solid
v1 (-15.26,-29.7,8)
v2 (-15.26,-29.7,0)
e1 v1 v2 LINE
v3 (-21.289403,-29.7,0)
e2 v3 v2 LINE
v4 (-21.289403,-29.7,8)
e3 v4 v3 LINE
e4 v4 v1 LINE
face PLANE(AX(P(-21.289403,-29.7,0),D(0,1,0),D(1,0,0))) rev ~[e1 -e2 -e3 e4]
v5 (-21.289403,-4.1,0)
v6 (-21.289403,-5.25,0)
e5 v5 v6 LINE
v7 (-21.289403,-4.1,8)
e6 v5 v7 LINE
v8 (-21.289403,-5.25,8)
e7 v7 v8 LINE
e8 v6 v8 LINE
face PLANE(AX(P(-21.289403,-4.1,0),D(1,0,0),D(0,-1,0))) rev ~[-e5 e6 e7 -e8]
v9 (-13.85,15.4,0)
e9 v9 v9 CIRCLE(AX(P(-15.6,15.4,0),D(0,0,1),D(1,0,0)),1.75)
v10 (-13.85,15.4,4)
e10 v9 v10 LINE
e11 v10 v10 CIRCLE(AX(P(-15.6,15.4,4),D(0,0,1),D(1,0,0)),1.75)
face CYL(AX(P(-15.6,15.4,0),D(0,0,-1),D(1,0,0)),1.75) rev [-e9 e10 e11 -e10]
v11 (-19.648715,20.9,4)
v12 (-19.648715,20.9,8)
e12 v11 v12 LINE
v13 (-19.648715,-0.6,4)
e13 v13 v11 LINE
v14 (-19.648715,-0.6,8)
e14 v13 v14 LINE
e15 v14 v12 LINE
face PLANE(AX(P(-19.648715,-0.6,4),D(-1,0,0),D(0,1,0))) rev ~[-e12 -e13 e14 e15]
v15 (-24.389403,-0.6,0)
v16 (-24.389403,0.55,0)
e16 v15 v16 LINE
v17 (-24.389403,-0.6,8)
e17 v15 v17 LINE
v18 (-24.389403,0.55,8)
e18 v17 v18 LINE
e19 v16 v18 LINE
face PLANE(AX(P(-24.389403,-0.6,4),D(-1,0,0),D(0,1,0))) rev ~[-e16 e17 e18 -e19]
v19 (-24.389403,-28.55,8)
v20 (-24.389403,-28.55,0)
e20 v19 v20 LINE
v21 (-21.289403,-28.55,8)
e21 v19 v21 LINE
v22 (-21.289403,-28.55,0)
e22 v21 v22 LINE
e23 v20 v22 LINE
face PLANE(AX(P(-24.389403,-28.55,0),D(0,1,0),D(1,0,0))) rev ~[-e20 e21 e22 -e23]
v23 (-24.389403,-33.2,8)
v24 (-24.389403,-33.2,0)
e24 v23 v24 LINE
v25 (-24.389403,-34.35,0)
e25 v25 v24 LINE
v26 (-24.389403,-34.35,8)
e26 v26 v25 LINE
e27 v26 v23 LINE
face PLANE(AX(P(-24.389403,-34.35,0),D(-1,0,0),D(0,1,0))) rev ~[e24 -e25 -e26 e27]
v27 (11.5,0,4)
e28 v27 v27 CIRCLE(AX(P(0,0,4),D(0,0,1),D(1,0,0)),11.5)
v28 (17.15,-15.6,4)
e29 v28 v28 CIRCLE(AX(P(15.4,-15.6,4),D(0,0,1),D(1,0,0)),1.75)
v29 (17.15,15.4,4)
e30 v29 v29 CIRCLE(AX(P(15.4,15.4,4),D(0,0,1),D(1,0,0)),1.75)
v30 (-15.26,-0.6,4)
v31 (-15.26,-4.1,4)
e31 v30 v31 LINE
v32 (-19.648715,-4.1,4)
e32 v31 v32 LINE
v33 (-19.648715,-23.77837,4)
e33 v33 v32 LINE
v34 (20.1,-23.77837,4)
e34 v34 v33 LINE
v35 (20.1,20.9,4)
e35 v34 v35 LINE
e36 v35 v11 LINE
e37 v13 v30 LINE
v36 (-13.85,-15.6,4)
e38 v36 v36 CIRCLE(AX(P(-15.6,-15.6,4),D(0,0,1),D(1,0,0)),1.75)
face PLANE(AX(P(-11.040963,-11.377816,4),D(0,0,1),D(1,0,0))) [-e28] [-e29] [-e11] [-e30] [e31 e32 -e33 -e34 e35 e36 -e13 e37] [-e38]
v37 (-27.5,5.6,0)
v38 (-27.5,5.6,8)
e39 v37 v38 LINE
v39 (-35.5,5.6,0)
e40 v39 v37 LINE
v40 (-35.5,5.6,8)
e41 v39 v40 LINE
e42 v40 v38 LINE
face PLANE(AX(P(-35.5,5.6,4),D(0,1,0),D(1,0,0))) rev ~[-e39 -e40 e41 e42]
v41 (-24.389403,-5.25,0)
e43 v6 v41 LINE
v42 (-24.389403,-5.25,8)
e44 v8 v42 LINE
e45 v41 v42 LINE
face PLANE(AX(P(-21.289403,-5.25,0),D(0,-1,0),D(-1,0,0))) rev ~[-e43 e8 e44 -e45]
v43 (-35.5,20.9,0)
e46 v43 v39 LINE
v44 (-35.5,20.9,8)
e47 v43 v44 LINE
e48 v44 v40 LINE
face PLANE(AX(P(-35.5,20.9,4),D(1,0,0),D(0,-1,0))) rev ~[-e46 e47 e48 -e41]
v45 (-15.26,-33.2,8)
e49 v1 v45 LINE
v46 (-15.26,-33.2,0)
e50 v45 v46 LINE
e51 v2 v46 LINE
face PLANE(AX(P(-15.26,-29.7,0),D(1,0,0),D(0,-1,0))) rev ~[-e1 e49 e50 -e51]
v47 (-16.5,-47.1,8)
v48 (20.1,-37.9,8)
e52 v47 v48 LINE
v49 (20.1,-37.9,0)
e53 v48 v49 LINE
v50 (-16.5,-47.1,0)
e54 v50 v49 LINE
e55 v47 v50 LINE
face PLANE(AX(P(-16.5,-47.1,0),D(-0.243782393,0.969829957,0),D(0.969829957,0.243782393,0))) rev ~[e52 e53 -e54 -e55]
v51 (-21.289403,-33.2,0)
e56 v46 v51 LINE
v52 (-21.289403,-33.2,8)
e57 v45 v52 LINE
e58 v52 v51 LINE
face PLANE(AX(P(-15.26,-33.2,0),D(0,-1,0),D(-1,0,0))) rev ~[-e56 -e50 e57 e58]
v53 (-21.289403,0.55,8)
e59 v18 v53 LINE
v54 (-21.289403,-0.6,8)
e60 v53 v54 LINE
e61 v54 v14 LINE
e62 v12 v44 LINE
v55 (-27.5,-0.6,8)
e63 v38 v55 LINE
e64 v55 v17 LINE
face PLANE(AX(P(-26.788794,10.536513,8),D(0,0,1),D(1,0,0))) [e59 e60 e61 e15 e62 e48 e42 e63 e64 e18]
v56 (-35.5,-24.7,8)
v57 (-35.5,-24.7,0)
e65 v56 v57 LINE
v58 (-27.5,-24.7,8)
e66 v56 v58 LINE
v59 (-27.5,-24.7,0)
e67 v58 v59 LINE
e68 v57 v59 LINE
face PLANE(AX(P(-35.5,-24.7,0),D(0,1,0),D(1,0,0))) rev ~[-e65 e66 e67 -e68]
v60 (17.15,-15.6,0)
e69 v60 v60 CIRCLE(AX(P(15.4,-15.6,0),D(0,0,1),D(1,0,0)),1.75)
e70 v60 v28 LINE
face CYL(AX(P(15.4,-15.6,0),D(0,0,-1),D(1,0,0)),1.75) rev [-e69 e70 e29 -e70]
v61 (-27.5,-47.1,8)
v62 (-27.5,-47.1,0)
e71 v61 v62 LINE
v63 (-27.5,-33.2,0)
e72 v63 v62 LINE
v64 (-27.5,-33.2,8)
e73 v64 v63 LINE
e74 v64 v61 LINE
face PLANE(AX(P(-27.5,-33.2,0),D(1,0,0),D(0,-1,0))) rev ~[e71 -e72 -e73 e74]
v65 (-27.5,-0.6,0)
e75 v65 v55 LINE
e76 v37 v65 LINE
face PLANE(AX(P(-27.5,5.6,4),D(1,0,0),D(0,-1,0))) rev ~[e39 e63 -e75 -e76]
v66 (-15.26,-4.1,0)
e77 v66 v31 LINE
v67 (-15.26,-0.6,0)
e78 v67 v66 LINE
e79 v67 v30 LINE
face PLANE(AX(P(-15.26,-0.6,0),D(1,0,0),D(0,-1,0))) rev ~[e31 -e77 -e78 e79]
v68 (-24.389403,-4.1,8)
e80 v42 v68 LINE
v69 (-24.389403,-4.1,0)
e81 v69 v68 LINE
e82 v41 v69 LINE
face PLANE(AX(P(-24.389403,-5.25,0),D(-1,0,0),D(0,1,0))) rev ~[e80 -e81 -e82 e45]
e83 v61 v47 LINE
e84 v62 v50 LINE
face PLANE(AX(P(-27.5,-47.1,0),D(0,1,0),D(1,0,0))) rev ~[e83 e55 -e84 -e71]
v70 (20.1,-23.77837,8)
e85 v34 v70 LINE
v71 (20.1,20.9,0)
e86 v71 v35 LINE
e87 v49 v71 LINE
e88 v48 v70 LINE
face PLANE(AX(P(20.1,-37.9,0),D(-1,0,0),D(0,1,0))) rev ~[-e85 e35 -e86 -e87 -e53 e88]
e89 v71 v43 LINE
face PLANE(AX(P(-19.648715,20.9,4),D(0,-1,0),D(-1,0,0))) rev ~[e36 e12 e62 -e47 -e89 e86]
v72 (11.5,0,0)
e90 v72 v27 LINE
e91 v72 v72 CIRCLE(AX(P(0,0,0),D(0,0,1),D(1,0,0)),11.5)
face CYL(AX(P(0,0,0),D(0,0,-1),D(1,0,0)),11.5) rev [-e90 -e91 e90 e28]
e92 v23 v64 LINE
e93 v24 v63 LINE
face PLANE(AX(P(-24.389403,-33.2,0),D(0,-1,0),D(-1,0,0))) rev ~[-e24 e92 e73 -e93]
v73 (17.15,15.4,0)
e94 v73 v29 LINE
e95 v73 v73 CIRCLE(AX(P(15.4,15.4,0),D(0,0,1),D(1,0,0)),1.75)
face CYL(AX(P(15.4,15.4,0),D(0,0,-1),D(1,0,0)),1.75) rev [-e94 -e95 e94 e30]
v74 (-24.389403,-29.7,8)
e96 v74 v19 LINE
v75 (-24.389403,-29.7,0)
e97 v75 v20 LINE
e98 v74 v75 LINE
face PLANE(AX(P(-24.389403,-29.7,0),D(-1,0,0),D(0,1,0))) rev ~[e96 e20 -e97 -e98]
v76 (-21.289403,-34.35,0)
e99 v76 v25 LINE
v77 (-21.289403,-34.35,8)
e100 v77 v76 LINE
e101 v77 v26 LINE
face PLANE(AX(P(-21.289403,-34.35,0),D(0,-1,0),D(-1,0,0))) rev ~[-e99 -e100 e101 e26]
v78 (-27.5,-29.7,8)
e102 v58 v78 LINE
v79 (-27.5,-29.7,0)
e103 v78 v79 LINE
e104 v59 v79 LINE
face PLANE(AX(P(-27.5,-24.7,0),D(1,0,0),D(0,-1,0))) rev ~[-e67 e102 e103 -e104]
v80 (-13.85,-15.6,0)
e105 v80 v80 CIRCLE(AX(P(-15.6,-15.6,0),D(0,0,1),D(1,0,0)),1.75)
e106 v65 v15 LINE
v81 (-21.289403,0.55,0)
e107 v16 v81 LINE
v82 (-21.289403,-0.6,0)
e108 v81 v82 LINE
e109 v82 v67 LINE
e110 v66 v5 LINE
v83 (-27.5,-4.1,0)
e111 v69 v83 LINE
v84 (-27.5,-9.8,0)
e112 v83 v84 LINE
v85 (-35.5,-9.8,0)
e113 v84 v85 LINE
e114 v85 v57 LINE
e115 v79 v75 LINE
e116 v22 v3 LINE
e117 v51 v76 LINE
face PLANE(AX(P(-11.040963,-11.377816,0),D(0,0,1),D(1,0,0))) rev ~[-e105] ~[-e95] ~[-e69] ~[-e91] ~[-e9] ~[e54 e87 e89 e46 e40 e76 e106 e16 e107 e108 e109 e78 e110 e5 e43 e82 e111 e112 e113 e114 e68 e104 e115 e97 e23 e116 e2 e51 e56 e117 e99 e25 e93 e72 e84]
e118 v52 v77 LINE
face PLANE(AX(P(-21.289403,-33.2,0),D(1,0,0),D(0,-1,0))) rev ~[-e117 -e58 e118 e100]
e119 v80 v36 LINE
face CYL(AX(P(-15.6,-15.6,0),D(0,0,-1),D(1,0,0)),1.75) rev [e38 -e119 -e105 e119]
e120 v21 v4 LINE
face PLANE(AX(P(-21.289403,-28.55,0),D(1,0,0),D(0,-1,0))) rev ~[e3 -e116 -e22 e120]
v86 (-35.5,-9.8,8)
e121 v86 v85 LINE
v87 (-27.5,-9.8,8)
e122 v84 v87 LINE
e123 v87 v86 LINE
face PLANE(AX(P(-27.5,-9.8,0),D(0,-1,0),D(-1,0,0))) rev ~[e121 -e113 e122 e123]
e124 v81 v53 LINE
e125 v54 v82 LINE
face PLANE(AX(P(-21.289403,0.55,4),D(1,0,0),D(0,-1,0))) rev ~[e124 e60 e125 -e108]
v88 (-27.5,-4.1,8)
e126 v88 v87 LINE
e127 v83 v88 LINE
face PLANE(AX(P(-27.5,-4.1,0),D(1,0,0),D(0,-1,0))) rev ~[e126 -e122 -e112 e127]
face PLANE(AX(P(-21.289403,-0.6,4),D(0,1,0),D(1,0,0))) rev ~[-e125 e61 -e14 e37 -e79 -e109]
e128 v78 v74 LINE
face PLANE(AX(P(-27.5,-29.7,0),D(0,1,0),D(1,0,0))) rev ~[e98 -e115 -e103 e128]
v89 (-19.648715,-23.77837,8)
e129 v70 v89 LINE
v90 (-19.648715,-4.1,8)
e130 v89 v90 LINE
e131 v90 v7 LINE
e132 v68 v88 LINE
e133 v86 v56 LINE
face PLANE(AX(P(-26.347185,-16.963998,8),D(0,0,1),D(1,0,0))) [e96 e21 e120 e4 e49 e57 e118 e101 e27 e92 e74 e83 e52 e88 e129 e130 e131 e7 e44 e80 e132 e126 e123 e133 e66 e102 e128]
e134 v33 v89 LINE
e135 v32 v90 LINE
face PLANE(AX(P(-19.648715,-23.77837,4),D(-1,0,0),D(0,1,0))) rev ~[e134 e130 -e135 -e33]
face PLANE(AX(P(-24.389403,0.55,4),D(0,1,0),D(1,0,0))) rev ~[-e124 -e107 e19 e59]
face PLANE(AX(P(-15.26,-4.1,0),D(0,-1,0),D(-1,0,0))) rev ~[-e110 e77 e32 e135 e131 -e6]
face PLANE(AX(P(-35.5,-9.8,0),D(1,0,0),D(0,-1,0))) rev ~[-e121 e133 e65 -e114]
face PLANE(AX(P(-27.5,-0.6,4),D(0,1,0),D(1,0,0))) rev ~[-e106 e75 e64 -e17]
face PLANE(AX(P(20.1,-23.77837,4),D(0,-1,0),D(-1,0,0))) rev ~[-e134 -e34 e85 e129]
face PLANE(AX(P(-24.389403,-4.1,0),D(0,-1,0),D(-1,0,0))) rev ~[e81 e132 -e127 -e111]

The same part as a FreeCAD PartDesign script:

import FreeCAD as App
import Part
import Sketcher
from FreeCAD import Vector


def add_polygon(sketch, points):
    """Adds a closed chain of lines whose ends are joined by coincident constraints."""
    first, n = sketch.GeometryCount, len(points)
    for a, b in zip(points, points[1:] + points[:1]):
        sketch.addGeometry(Part.LineSegment(App.Vector(*a, 0), App.Vector(*b, 0)), False)
    for i in range(n):
        sketch.addConstraint(Sketcher.Constraint("Coincident", first + i, 2, first + (i + 1) % n, 1))

doc = App.newDocument("Part")
body = doc.addObject("PartDesign::Body", "Body")

# Sketch on XY plane
sketch1 = body.newObject("Sketcher::SketchObject", "Sketch")
sketch1.AttachmentSupport = (doc.getObject("XY_Plane"), [""])
sketch1.MapMode = "FlatFace"
add_polygon(sketch1, [(20.1, -37.9), (20.1, 20.9), (-35.5, 20.9), (-35.5, 5.6), (-27.5, 5.6), (-27.5, -0.6), (-24.4, -0.6), (-24.4, 0.6), (-21.3, 0.6), (-21.3, -0.6), (-15.3, -0.6), (-15.3, -4.1), (-21.3, -4.1), (-21.3, -5.2), (-24.4, -5.2), (-24.4, -4.1), (-27.5, -4.1), (-27.5, -9.8), (-35.5, -9.8), (-35.5, -24.7), (-27.5, -24.7), (-27.5, -29.7), (-24.4, -29.7), (-24.4, -28.6), (-21.3, -28.6), (-21.3, -29.7), (-15.3, -29.7), (-15.3, -33.2), (-21.3, -33.2), (-21.3, -34.4), (-24.4, -34.4), (-24.4, -33.2), (-27.5, -33.2), (-27.5, -47.1), (-16.5, -47.1)])  # lines 0-34
sketch1.addGeometry(Part.Circle(Vector(-15.6, -15.6, 0), Vector(0, 0, 1), 1.8), False)  # 35
sketch1.addGeometry(Part.Circle(Vector(15.4, -15.6, 0), Vector(0, 0, 1), 1.8), False)  # 36
sketch1.addGeometry(Part.Circle(Vector(-15.6, 15.4, 0), Vector(0, 0, 1), 1.8), False)  # 37
sketch1.addGeometry(Part.Circle(Vector(0, 0, 0), Vector(0, 0, 1), 11.5), False)  # 38
sketch1.addGeometry(Part.Circle(Vector(15.4, 15.4, 0), Vector(0, 0, 1), 1.8), False)  # 39
sketch1.addConstraint(Sketcher.Constraint("Vertical", 0))
sketch1.addConstraint(Sketcher.Constraint("Horizontal", 1))
sketch1.addConstraint(Sketcher.Constraint("Vertical", 2))
sketch1.addConstraint(Sketcher.Constraint("Horizontal", 3))
sketch1.addConstraint(Sketcher.Constraint("Vertical", 4))
sketch1.addConstraint(Sketcher.Constraint("Horizontal", 5))
sketch1.addConstraint(Sketcher.Constraint("Vertical", 6))
sketch1.addConstraint(Sketcher.Constraint("Horizontal", 7))
sketch1.addConstraint(Sketcher.Constraint("Vertical", 8))
sketch1.addConstraint(Sketcher.Constraint("Horizontal", 9))
sketch1.addConstraint(Sketcher.Constraint("Vertical", 10))
sketch1.addConstraint(Sketcher.Constraint("Horizontal", 11))
sketch1.addConstraint(Sketcher.Constraint("Vertical", 12))
sketch1.addConstraint(Sketcher.Constraint("Horizontal", 13))
sketch1.addConstraint(Sketcher.Constraint("Vertical", 14))
sketch1.addConstraint(Sketcher.Constraint("Horizontal", 15))
sketch1.addConstraint(Sketcher.Constraint("Vertical", 16))
sketch1.addConstraint(Sketcher.Constraint("Horizontal", 17))
sketch1.addConstraint(Sketcher.Constraint("Vertical", 18))
sketch1.addConstraint(Sketcher.Constraint("Horizontal", 19))
sketch1.addConstraint(Sketcher.Constraint("Vertical", 20))
sketch1.addConstraint(Sketcher.Constraint("Horizontal", 21))
sketch1.addConstraint(Sketcher.Constraint("Vertical", 22))
sketch1.addConstraint(Sketcher.Constraint("Horizontal", 23))
sketch1.addConstraint(Sketcher.Constraint("Vertical", 24))
sketch1.addConstraint(Sketcher.Constraint("Horizontal", 25))
sketch1.addConstraint(Sketcher.Constraint("Vertical", 26))
sketch1.addConstraint(Sketcher.Constraint("Horizontal", 27))
sketch1.addConstraint(Sketcher.Constraint("Vertical", 28))
sketch1.addConstraint(Sketcher.Constraint("Horizontal", 29))
sketch1.addConstraint(Sketcher.Constraint("Vertical", 30))
sketch1.addConstraint(Sketcher.Constraint("Horizontal", 31))
sketch1.addConstraint(Sketcher.Constraint("Vertical", 32))
sketch1.addConstraint(Sketcher.Constraint("Horizontal", 33))
sketch1.addConstraint(Sketcher.Constraint("Coincident", 38, 3, -1, 1))
sketch1.addConstraint(Sketcher.Constraint("Equal", 35, 36))
sketch1.addConstraint(Sketcher.Constraint("Equal", 36, 37))
sketch1.addConstraint(Sketcher.Constraint("Equal", 37, 39))
sketch1.addConstraint(Sketcher.Constraint("Horizontal", 35, 3, 36, 3))
sketch1.addConstraint(Sketcher.Constraint("Horizontal", 37, 3, 39, 3))
sketch1.addConstraint(Sketcher.Constraint("Horizontal", 5, 2, 8, 2))
sketch1.addConstraint(Sketcher.Constraint("Horizontal", 11, 2, 14, 2))
sketch1.addConstraint(Sketcher.Constraint("Horizontal", 21, 2, 24, 2))
sketch1.addConstraint(Sketcher.Constraint("Horizontal", 27, 2, 30, 2))
sketch1.addConstraint(Sketcher.Constraint("Vertical", 35, 3, 37, 3))
sketch1.addConstraint(Sketcher.Constraint("Vertical", 36, 3, 39, 3))
sketch1.addConstraint(Sketcher.Constraint("Vertical", 8, 2, 11, 2))
sketch1.addConstraint(Sketcher.Constraint("Vertical", 6, 2, 13, 2))
sketch1.addConstraint(Sketcher.Constraint("Vertical", 4, 2, 15, 2))
sketch1.addConstraint(Sketcher.Constraint("Vertical", 2, 2, 17, 2))
sketch1.addConstraint(Sketcher.Constraint("Vertical", 16, 2, 19, 2))
sketch1.addConstraint(Sketcher.Constraint("Vertical", 14, 2, 21, 2))
sketch1.addConstraint(Sketcher.Constraint("Vertical", 12, 2, 23, 2))
sketch1.addConstraint(Sketcher.Constraint("Vertical", 10, 2, 25, 2))
sketch1.addConstraint(Sketcher.Constraint("Vertical", 24, 2, 27, 2))
sketch1.addConstraint(Sketcher.Constraint("Vertical", 22, 2, 29, 2))
sketch1.addConstraint(Sketcher.Constraint("Vertical", 20, 2, 31, 2))
sketch1.addConstraint(Sketcher.Constraint("Equal", 8, 12))
sketch1.addConstraint(Sketcher.Constraint("Equal", 14, 22))
sketch1.addConstraint(Sketcher.Constraint("Equal", 10, 26))
sketch1.addConstraint(Sketcher.Constraint("Equal", 24, 28))
sketch1.addConstraint(Sketcher.Constraint("Diameter", 38, 23.0))
sketch1.addConstraint(Sketcher.Constraint("Diameter", 35, 3.5))
sketch1.addConstraint(Sketcher.Constraint("DistanceX", 3, 1, 3, 2, 8.0))
sketch1.addConstraint(Sketcher.Constraint("DistanceX", 33, 1, 33, 2, 11.0))
sketch1.addConstraint(Sketcher.Constraint("DistanceY", 20, 2, 20, 1, 5.0))
sketch1.addConstraint(Sketcher.Constraint("DistanceX", 1, 2, 1, 1, 55.6))
sketch1.addConstraint(Sketcher.Constraint("DistanceX", 7, 1, 7, 2, 3.1))
sketch1.addConstraint(Sketcher.Constraint("DistanceY", 0, 1, 0, 2, 58.8))
sketch1.addConstraint(Sketcher.Constraint("DistanceY", 2, 2, 2, 1, 15.3))
sketch1.addConstraint(Sketcher.Constraint("DistanceY", 4, 2, 4, 1, 6.2))
sketch1.addConstraint(Sketcher.Constraint("DistanceY", 10, 2, 10, 1, 3.5))
sketch1.addConstraint(Sketcher.Constraint("DistanceY", 16, 2, 16, 1, 5.7))
sketch1.addConstraint(Sketcher.Constraint("DistanceY", 18, 2, 18, 1, 14.9))
sketch1.addConstraint(Sketcher.Constraint("DistanceY", 32, 2, 32, 1, 13.9))
sketch1.addConstraint(Sketcher.Constraint("DistanceX", 35, 3, 36, 3, 31.0))
sketch1.addConstraint(Sketcher.Constraint("DistanceY", 35, 3, 37, 3, 31.0))
sketch1.addConstraint(Sketcher.Constraint("DistanceY", 35, 3, 4, 2, 15.0))
sketch1.addConstraint(Sketcher.Constraint("DistanceY", 6, 1, 6, 2, 1.15))
sketch1.addConstraint(Sketcher.Constraint("DistanceX", 35, 3, -1, 1, 15.6))
sketch1.addConstraint(Sketcher.Constraint("DistanceY", 35, 3, -1, 1, 15.6))
sketch1.addConstraint(Sketcher.Constraint("DistanceX", -1, 1, 0, 2, 20.1))
sketch1.addConstraint(Sketcher.Constraint("DistanceX", 9, 2, -1, 1, 15.26))
sketch1.addConstraint(Sketcher.Constraint("DistanceX", 5, 1, 5, 2, 3.110597))
pad1 = body.newObject("PartDesign::Pad", "Pad")
pad1.Profile = sketch1
pad1.Length = 4

# Sketch on XY plane
sketch2 = body.newObject("Sketcher::SketchObject", "Sketch001")
sketch2.AttachmentSupport = (doc.getObject("XY_Plane"), [""])
sketch2.MapMode = "FlatFace"
sketch2.AttachmentOffset = App.Placement(Vector(0, 0, 4), App.Rotation())
add_polygon(sketch2, [(-19.6, 20.9), (-35.5, 20.9), (-35.5, 5.6), (-27.5, 5.6), (-27.5, -0.6), (-24.4, -0.6), (-24.4, 0.6), (-21.3, 0.6), (-21.3, -0.6), (-19.6, -0.6)])  # lines 0-9
add_polygon(sketch2, [(-19.6, -4.1), (-21.3, -4.1), (-21.3, -5.2), (-24.4, -5.2), (-24.4, -4.1), (-27.5, -4.1), (-27.5, -9.8), (-35.5, -9.8), (-35.5, -24.7), (-27.5, -24.7), (-27.5, -29.7), (-24.4, -29.7), (-24.4, -28.6), (-21.3, -28.6), (-21.3, -29.7), (-15.3, -29.7), (-15.3, -33.2), (-21.3, -33.2), (-21.3, -34.4), (-24.4, -34.4), (-24.4, -33.2), (-27.5, -33.2), (-27.5, -47.1), (-16.5, -47.1), (20.1, -37.9), (20.1, -23.8), (-19.6, -23.8)])  # lines 10-36
sketch2.addConstraint(Sketcher.Constraint("Horizontal", 0))
sketch2.addConstraint(Sketcher.Constraint("Vertical", 1))
sketch2.addConstraint(Sketcher.Constraint("Horizontal", 2))
sketch2.addConstraint(Sketcher.Constraint("Vertical", 3))
sketch2.addConstraint(Sketcher.Constraint("Horizontal", 4))
sketch2.addConstraint(Sketcher.Constraint("Vertical", 5))
sketch2.addConstraint(Sketcher.Constraint("Horizontal", 6))
sketch2.addConstraint(Sketcher.Constraint("Vertical", 7))
sketch2.addConstraint(Sketcher.Constraint("Horizontal", 8))
sketch2.addConstraint(Sketcher.Constraint("Vertical", 9))
sketch2.addConstraint(Sketcher.Constraint("Horizontal", 10))
sketch2.addConstraint(Sketcher.Constraint("Vertical", 11))
sketch2.addConstraint(Sketcher.Constraint("Horizontal", 12))
sketch2.addConstraint(Sketcher.Constraint("Vertical", 13))
sketch2.addConstraint(Sketcher.Constraint("Horizontal", 14))
sketch2.addConstraint(Sketcher.Constraint("Vertical", 15))
sketch2.addConstraint(Sketcher.Constraint("Horizontal", 16))
sketch2.addConstraint(Sketcher.Constraint("Vertical", 17))
sketch2.addConstraint(Sketcher.Constraint("Horizontal", 18))
sketch2.addConstraint(Sketcher.Constraint("Vertical", 19))
sketch2.addConstraint(Sketcher.Constraint("Horizontal", 20))
sketch2.addConstraint(Sketcher.Constraint("Vertical", 21))
sketch2.addConstraint(Sketcher.Constraint("Horizontal", 22))
sketch2.addConstraint(Sketcher.Constraint("Vertical", 23))
sketch2.addConstraint(Sketcher.Constraint("Horizontal", 24))
sketch2.addConstraint(Sketcher.Constraint("Vertical", 25))
sketch2.addConstraint(Sketcher.Constraint("Horizontal", 26))
sketch2.addConstraint(Sketcher.Constraint("Vertical", 27))
sketch2.addConstraint(Sketcher.Constraint("Horizontal", 28))
sketch2.addConstraint(Sketcher.Constraint("Vertical", 29))
sketch2.addConstraint(Sketcher.Constraint("Horizontal", 30))
sketch2.addConstraint(Sketcher.Constraint("Vertical", 31))
sketch2.addConstraint(Sketcher.Constraint("Horizontal", 32))
sketch2.addConstraint(Sketcher.Constraint("Vertical", 34))
sketch2.addConstraint(Sketcher.Constraint("Horizontal", 35))
sketch2.addConstraint(Sketcher.Constraint("Vertical", 36))
sketch2.addConstraint(Sketcher.Constraint("Horizontal", 4, 2, 7, 2))
sketch2.addConstraint(Sketcher.Constraint("Horizontal", 10, 2, 13, 2))
sketch2.addConstraint(Sketcher.Constraint("Horizontal", 20, 2, 23, 2))
sketch2.addConstraint(Sketcher.Constraint("Horizontal", 26, 2, 29, 2))
sketch2.addConstraint(Sketcher.Constraint("Vertical", 7, 2, 10, 2))
sketch2.addConstraint(Sketcher.Constraint("Vertical", 5, 2, 12, 2))
sketch2.addConstraint(Sketcher.Constraint("Vertical", 3, 2, 14, 2))
sketch2.addConstraint(Sketcher.Constraint("Vertical", 1, 2, 16, 2))
sketch2.addConstraint(Sketcher.Constraint("Vertical", 15, 2, 18, 2))
sketch2.addConstraint(Sketcher.Constraint("Vertical", 13, 2, 20, 2))
sketch2.addConstraint(Sketcher.Constraint("Vertical", 11, 2, 22, 2))
sketch2.addConstraint(Sketcher.Constraint("Vertical", 23, 2, 26, 2))
sketch2.addConstraint(Sketcher.Constraint("Vertical", 21, 2, 28, 2))
sketch2.addConstraint(Sketcher.Constraint("Vertical", 19, 2, 30, 2))
sketch2.addConstraint(Sketcher.Constraint("Vertical", 9, 2, 35, 2))
sketch2.addConstraint(Sketcher.Constraint("Equal", 7, 11))
sketch2.addConstraint(Sketcher.Constraint("Equal", 13, 21))
sketch2.addConstraint(Sketcher.Constraint("Equal", 23, 27))
sketch2.addConstraint(Sketcher.Constraint("DistanceX", 2, 1, 2, 2, 8.0))
sketch2.addConstraint(Sketcher.Constraint("DistanceX", 32, 1, 32, 2, 11.0))
sketch2.addConstraint(Sketcher.Constraint("DistanceY", 19, 2, 19, 1, 5.0))
sketch2.addConstraint(Sketcher.Constraint("DistanceX", 6, 1, 6, 2, 3.1))
sketch2.addConstraint(Sketcher.Constraint("DistanceY", 1, 2, 1, 1, 15.3))
sketch2.addConstraint(Sketcher.Constraint("DistanceY", 3, 2, 3, 1, 6.2))
sketch2.addConstraint(Sketcher.Constraint("DistanceY", 15, 2, 15, 1, 5.7))
sketch2.addConstraint(Sketcher.Constraint("DistanceY", 17, 2, 17, 1, 14.9))
sketch2.addConstraint(Sketcher.Constraint("DistanceY", 25, 2, 25, 1, 3.5))
sketch2.addConstraint(Sketcher.Constraint("DistanceY", 31, 2, 31, 1, 13.9))
sketch2.addConstraint(Sketcher.Constraint("DistanceY", 5, 1, 5, 2, 1.15))
sketch2.addConstraint(Sketcher.Constraint("DistanceX", 0, 2, -1, 1, 35.5))
sketch2.addConstraint(Sketcher.Constraint("DistanceY", -1, 1, 0, 2, 20.9))
sketch2.addConstraint(Sketcher.Constraint("DistanceY", 10, 2, -1, 1, 4.1))
sketch2.addConstraint(Sketcher.Constraint("DistanceX", -1, 1, 33, 2, 20.1))
sketch2.addConstraint(Sketcher.Constraint("DistanceY", 33, 2, -1, 1, 37.9))
sketch2.addConstraint(Sketcher.Constraint("DistanceX", 24, 2, -1, 1, 15.26))
sketch2.addConstraint(Sketcher.Constraint("DistanceX", 8, 1, 8, 2, 1.640688))
sketch2.addConstraint(Sketcher.Constraint("DistanceY", 34, 1, 34, 2, 14.12163))
sketch2.addConstraint(Sketcher.Constraint("DistanceX", 0, 2, 0, 1, 15.851285))
pad2 = body.newObject("PartDesign::Pad", "Pad001")
pad2.Profile = sketch2
pad2.Length = 4

doc.recompute()
